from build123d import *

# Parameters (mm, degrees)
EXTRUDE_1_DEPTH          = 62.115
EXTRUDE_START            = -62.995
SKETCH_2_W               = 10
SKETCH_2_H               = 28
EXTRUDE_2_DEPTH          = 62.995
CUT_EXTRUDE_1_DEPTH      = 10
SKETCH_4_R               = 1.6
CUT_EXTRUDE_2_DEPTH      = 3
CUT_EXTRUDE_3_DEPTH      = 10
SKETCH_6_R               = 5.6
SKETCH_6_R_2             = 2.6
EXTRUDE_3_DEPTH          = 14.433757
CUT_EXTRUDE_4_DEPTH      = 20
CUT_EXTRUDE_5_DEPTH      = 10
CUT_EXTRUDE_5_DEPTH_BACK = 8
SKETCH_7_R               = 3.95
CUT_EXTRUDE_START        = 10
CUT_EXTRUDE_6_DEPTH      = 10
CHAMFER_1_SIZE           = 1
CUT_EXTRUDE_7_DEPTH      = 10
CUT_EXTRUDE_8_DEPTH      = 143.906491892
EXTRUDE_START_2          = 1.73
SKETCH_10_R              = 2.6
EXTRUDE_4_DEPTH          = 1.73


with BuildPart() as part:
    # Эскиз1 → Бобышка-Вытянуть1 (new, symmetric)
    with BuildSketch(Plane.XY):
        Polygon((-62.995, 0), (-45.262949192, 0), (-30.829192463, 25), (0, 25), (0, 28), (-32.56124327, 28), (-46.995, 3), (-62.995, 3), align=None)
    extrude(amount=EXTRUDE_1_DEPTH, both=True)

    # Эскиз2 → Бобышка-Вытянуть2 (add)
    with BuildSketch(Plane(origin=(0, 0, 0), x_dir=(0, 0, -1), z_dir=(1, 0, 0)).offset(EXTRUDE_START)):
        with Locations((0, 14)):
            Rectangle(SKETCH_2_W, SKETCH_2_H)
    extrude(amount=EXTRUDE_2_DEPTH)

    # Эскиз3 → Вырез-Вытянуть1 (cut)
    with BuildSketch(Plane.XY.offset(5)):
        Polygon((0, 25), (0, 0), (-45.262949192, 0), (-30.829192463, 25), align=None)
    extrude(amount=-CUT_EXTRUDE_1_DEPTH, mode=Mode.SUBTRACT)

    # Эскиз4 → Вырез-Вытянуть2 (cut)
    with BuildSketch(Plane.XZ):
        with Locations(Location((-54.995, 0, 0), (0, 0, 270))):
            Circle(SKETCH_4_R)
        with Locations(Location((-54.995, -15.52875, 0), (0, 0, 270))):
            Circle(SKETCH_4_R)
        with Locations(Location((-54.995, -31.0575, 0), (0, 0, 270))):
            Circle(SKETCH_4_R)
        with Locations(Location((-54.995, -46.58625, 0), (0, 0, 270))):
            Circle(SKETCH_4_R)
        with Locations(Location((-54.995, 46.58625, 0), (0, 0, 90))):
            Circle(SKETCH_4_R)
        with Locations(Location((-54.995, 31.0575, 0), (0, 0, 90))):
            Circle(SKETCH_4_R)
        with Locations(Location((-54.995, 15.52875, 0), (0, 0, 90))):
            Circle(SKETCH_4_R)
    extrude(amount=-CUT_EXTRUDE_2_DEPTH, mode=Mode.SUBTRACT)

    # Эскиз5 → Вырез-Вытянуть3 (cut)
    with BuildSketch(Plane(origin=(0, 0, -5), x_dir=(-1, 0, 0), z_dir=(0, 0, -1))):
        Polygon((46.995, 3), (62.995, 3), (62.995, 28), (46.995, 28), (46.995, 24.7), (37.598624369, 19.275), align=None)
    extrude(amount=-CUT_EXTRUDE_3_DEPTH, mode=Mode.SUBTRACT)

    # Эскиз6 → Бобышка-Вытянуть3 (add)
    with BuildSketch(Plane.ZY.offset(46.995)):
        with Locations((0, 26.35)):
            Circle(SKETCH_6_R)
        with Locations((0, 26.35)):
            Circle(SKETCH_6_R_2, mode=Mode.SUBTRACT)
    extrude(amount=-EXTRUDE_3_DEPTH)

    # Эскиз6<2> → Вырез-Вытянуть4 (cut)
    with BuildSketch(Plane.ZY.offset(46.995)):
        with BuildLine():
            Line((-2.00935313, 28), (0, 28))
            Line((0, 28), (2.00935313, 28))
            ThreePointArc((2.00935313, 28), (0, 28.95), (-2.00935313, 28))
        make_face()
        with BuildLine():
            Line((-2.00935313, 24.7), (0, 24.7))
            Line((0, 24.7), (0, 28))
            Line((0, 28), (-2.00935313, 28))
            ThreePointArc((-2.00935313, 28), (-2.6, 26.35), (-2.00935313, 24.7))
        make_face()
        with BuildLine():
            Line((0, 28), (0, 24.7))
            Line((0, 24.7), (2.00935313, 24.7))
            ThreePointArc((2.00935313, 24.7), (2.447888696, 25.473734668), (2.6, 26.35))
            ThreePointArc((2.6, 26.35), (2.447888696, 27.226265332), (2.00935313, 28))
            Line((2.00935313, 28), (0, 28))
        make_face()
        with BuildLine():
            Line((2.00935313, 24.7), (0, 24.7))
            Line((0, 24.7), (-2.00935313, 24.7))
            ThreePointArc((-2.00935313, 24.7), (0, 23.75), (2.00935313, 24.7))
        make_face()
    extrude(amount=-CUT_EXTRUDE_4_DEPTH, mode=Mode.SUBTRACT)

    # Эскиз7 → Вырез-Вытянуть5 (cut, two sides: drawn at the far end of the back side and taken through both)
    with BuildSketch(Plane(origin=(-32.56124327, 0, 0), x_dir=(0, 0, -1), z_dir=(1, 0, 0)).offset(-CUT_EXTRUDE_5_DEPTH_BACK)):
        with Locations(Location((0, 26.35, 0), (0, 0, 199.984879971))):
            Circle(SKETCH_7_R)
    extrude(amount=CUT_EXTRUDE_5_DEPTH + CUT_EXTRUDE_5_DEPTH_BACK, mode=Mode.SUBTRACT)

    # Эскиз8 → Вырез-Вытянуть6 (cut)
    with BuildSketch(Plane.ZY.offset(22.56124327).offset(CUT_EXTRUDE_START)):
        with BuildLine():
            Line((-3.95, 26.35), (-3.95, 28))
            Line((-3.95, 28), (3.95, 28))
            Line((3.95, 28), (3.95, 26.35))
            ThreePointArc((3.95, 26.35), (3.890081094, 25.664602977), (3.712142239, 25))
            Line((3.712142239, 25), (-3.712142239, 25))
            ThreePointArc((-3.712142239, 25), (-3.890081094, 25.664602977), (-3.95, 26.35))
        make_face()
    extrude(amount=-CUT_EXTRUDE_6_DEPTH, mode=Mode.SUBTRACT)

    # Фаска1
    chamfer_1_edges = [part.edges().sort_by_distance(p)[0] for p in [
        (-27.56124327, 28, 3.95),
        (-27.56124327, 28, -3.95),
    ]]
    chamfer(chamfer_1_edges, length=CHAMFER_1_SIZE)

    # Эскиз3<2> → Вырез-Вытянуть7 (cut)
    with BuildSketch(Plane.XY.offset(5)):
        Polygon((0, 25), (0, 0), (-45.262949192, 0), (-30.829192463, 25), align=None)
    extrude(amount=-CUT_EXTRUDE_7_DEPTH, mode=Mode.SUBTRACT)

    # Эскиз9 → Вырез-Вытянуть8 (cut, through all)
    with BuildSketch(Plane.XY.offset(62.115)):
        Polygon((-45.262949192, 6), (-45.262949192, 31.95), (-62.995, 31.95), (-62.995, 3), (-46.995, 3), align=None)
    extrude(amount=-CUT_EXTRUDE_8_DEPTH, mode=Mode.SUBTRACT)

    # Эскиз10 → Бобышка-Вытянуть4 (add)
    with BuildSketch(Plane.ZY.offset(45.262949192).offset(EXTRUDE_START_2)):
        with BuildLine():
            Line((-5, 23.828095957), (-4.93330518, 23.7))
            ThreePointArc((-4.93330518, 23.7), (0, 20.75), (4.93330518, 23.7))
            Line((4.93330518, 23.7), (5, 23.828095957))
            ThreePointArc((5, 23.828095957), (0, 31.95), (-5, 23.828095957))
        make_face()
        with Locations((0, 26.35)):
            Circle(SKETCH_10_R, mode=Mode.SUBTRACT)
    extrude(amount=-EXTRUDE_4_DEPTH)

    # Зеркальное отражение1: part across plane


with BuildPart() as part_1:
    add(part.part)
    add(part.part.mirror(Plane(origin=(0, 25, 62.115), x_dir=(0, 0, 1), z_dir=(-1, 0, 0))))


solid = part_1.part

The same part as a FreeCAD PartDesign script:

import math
import FreeCAD as App
import Part
import Sketcher
Q = App.Units.Quantity


def edges_at(feature, points):
    """Names of the edges that pass closest to the given points."""
    edges = feature.Shape.Edges
    near = lambda p: min(range(len(edges)), key=lambda i: edges[i].distToShape(Part.Vertex(*p))[0])
    return sorted({f"Edge{near(p) + 1}" for p in points})


def add_polygon(sketch, points):
    """Adds a closed chain of lines whose ends are joined by coincident constraints."""
    first, n = sketch.GeometryCount, len(points)
    for a, b in zip(points, points[1:] + points[:1]):
        sketch.addGeometry(Part.LineSegment(App.Vector(*a, 0), App.Vector(*b, 0)), False)
    for i in range(n):
        sketch.addConstraint(Sketcher.Constraint("Coincident", first + i, 2, first + (i + 1) % n, 1))

doc = App.newDocument("Part")
params = doc.addObject("Spreadsheet::Sheet", "Params")
for row, (alias, value) in enumerate([
    ("sketch1_width", "16 mm"),
    ("sketch1_height", "3 mm"),
    ("pad1_length", "124.23 mm"),
    ("sketch2_width", "28 mm"),
    ("sketch2_height", "10 mm"),
    ("pad2_length", "62.995 mm"),
    ("sketch3_height", "25 mm"),
    ("pocket1_length", "10 mm"),
    ("sketch4_diameter", "3.2 mm"),
    ("pocket2_length", "3 mm"),
    ("sketch5_width", "16 mm"),
    ("sketch5_height", "25 mm"),
    ("sketch5_height2", "3.3 mm"),
    ("pocket3_length", "10 mm"),
    ("sketch6_diameter", "11.2 mm"),
    ("sketch6_diameter2", "5.2 mm"),
    ("pad3_length", "14.433757 mm"),
    ("sketch7_radius", "2.6 mm"),
    ("pocket4_length", "20 mm"),
    ("sketch8_diameter", "7.9 mm"),
    ("pocket5_length", "10 mm"),
    ("pocket5_length2", "8 mm"),
    ("sketch9_radius", "3.95 mm"),
    ("sketch9_width", "1.65 mm"),
    ("pocket6_length", "10 mm"),
    ("chamfer_size", "1 mm"),
    ("sketch10_height", "25 mm"),
    ("pocket7_length", "10 mm"),
    ("sketch11_width", "16 mm"),
    ("sketch11_height", "25.95 mm"),
    ("sketch12_diameter", "5.2 mm"),
    ("sketch12_radius", "5.6 mm"),
    ("pad4_length", "1.73 mm"),
], start=1):
    params.set(f"A{row}", alias)
    params.set(f"B{row}", "=" + value)
    params.setAlias(f"B{row}", alias)

body = doc.addObject("PartDesign::Body", "Body")

sketch1 = doc.addObject("Sketcher::SketchObject", "Sketch")
body.addObject(sketch1)
sketch1.AttachmentSupport = (doc.XY_Plane, [""])
sketch1.MapMode = "FlatFace"
add_polygon(sketch1, [(-63, 0), (-45.3, 0), (-30.8, 25), (0, 25), (0, 28), (-32.6, 28), (-47, 3), (-63, 3)])
sketch1.addConstraint([
    Sketcher.Constraint("Horizontal", 0),
    Sketcher.Constraint("Horizontal", 2),
    Sketcher.Constraint("Vertical", 3),
    Sketcher.Constraint("Horizontal", 4),
    Sketcher.Constraint("Horizontal", 6),
    Sketcher.Constraint("Vertical", 7),
    Sketcher.Constraint("PointOnObject", 0, 2, -1),
    Sketcher.Constraint("PointOnObject", 2, 2, -2),
    Sketcher.Constraint("Parallel", 1, 5),
    Sketcher.Constraint("Equal", 3, 7),
    Sketcher.Constraint("DistanceX", 6, 2, 6, 1, 16.0),
    Sketcher.Constraint("DistanceY", 3, 1, 3, 2, 3.0),
    Sketcher.Constraint("Angle", 1, Q("60 deg")),
    Sketcher.Constraint("DistanceY", -1, 1, 1, 2, 25.0),
    Sketcher.Constraint("DistanceX", 5, 2, -1, 1, 46.995),
    Sketcher.Constraint("DistanceX", 0, 1, 0, 2, 17.732051),
])
sketch1.setExpression("Constraints[18]", "Params.sketch1_width")
sketch1.setExpression("Constraints[19]", "Params.sketch1_height")
pad1 = doc.addObject("PartDesign::Pad", "Pad")
body.addObject(pad1)
pad1.Profile = sketch1
pad1.setExpression("Length", "Params.pad1_length")
pad1.Midplane = True

sketch2 = doc.addObject("Sketcher::SketchObject", "Sketch001")
body.addObject(sketch2)
sketch2.AttachmentSupport = (doc.YZ_Plane, [""])
sketch2.MapMode = "FlatFace"
sketch2.AttachmentOffset = App.Placement(App.Vector(0, 0, -62.995), App.Rotation())
add_polygon(sketch2, [(28, 5), (0, 5), (0, -5), (28, -5)])
sketch2.addConstraint([
    Sketcher.Constraint("Horizontal", 0),
    Sketcher.Constraint("Vertical", 1),
    Sketcher.Constraint("Horizontal", 2),
    Sketcher.Constraint("Vertical", 3),
    Sketcher.Constraint("Symmetric", 0, 2, 1, 2, -1, 1),
    Sketcher.Constraint("DistanceX", 0, 2, 0, 1, 28.0),
    Sketcher.Constraint("DistanceY", 1, 2, 1, 1, 10.0),
])
sketch2.setExpression("Constraints[9]", "Params.sketch2_width")
sketch2.setExpression("Constraints[10]", "Params.sketch2_height")
pad2 = doc.addObject("PartDesign::Pad", "Pad001")
body.addObject(pad2)
pad2.Profile = sketch2
pad2.setExpression("Length", "Params.pad2_length")

sketch3 = doc.addObject("Sketcher::SketchObject", "Sketch002")
body.addObject(sketch3)
sketch3.AttachmentSupport = (doc.XY_Plane, [""])
sketch3.MapMode = "FlatFace"
sketch3.AttachmentOffset = App.Placement(App.Vector(0, 0, 5), App.Rotation())
add_polygon(sketch3, [(0, 0), (0, 25), (-31, 25), (-45, 0)])
sketch3.addConstraint([
    Sketcher.Constraint("Vertical", 0),
    Sketcher.Constraint("Horizontal", 1),
    Sketcher.Constraint("Horizontal", 3),
    Sketcher.Constraint("Coincident", 3, 2, -1, 1),
    Sketcher.Constraint("DistanceY", 0, 1, 0, 2, 25.0),
    Sketcher.Constraint("Angle", 2, Q("-120 deg")),
    Sketcher.Constraint("DistanceX", 3, 1, 3, 2, 45.262949),
])
sketch3.setExpression("Constraints[8]", "Params.sketch3_height")
pocket1 = doc.addObject("PartDesign::Pocket", "Pocket")
body.addObject(pocket1)
pocket1.Profile = sketch3
pocket1.setExpression("Length", "Params.pocket1_length")

sketch4 = doc.addObject("Sketcher::SketchObject", "Sketch003")
body.addObject(sketch4)
sketch4.AttachmentSupport = (doc.XZ_Plane, [""])
sketch4.MapMode = "FlatFace"
sketch4.addGeometry([
    Part.Circle(App.Vector(-55, 0, 0), App.Vector(0, 0, 1), 1.6),
    Part.Circle(App.Vector(-55, -15.5, 0), App.Vector(0, 0, 1), 1.6),
    Part.Circle(App.Vector(-55, -31.1, 0), App.Vector(0, 0, 1), 1.6),
    Part.Circle(App.Vector(-55, -46.6, 0), App.Vector(0, 0, 1), 1.6),
    Part.Circle(App.Vector(-55, 46.6, 0), App.Vector(0, 0, 1), 1.6),
    Part.Circle(App.Vector(-55, 31.1, 0), App.Vector(0, 0, 1), 1.6),
    Part.Circle(App.Vector(-55, 15.5, 0), App.Vector(0, 0, 1), 1.6),
], False)
sketch4.addConstraint([
    Sketcher.Constraint("Equal", 0, 1),
    Sketcher.Constraint("Equal", 1, 2),
    Sketcher.Constraint("Equal", 2, 3),
    Sketcher.Constraint("Equal", 3, 4),
    Sketcher.Constraint("Equal", 4, 5),
    Sketcher.Constraint("Equal", 5, 6),
    Sketcher.Constraint("Symmetric", 3, 3, 4, 3, -1),
    Sketcher.Constraint("Symmetric", 2, 3, 5, 3, -1),
    Sketcher.Constraint("Symmetric", 1, 3, 6, 3, -1),
    Sketcher.Constraint("PointOnObject", 0, 3, -1),
    Sketcher.Constraint("Vertical", 0, 3, 1, 3),
    Sketcher.Constraint("Vertical", 1, 3, 2, 3),
    Sketcher.Constraint("Vertical", 2, 3, 3, 3),
    Sketcher.Constraint("Diameter", 0, 3.2),
    Sketcher.Constraint("DistanceX", 0, 3, -1, 1, 54.995),
    Sketcher.Constraint("DistanceY", 1, 3, 4, 3, 62.115),
    Sketcher.Constraint("DistanceY", 2, 3, 5, 3, 62.115),
    Sketcher.Constraint("DistanceY", 3, 3, 1, 3, 31.0575),
])
sketch4.setExpression("Constraints[13]", "Params.sketch4_diameter")
pocket2 = doc.addObject("PartDesign::Pocket", "Pocket001")
body.addObject(pocket2)
pocket2.Profile = sketch4
pocket2.setExpression("Length", "Params.pocket2_length")

sketch5 = doc.addObject("Sketcher::SketchObject", "Sketch004")
body.addObject(sketch5)
sketch5.AttachmentSupport = (doc.XY_Plane, [""])
sketch5.MapMode = "FlatFace"
sketch5.AttachmentOffset = App.Placement(App.Vector(0, 0, -5), App.Rotation())
add_polygon(sketch5, [(-47, 3), (-63, 3), (-63, 28), (-47, 28), (-47, 24.7), (-37.6, 19.3)])
sketch5.addConstraint([
    Sketcher.Constraint("Horizontal", 0),
    Sketcher.Constraint("Vertical", 1),
    Sketcher.Constraint("Horizontal", 2),
    Sketcher.Constraint("Vertical", 3),
    Sketcher.Constraint("Perpendicular", 4, 5),
    Sketcher.Constraint("Vertical", 3, 2, 5, 2),
    Sketcher.Constraint("DistanceX", 0, 2, 0, 1, 16.0),
    Sketcher.Constraint("DistanceY", 1, 1, 1, 2, 25.0),
    Sketcher.Constraint("Angle", 4, Q("-30 deg")),
    Sketcher.Constraint("DistanceY", 3, 2, 3, 1, 3.3),
    Sketcher.Constraint("DistanceY", -1, 1, 0, 2, 3.0),
    Sketcher.Constraint("DistanceX", 0, 2, -1, 1, 62.995),
])
sketch5.setExpression("Constraints[12]", "Params.sketch5_width")
sketch5.setExpression("Constraints[13]", "Params.sketch5_height")
sketch5.setExpression("Constraints[15]", "Params.sketch5_height2")
pocket3 = doc.addObject("PartDesign::Pocket", "Pocket002")
body.addObject(pocket3)
pocket3.Profile = sketch5
pocket3.setExpression("Length", "Params.pocket3_length")
pocket3.Reversed = True

sketch6 = doc.addObject("Sketcher::SketchObject", "Sketch005")
body.addObject(sketch6)
sketch6.AttachmentSupport = (doc.YZ_Plane, [""])
sketch6.MapMode = "FlatFace"
sketch6.AttachmentOffset = App.Placement(App.Vector(0, 0, -46.995), App.Rotation())
sketch6.addGeometry([
    Part.Circle(App.Vector(26.4, 0, 0), App.Vector(0, 0, 1), 5.6),
    Part.Circle(App.Vector(26.4, 0, 0), App.Vector(0, 0, 1), 2.6),
], False)
sketch6.addConstraint([
    Sketcher.Constraint("Coincident", 1, 3, 0, 3),
    Sketcher.Constraint("PointOnObject", 0, 3, -1),
    Sketcher.Constraint("Diameter", 0, 11.2),
    Sketcher.Constraint("Diameter", 1, 5.2),
    Sketcher.Constraint("DistanceX", -1, 1, 0, 3, 26.35),
])
sketch6.setExpression("Constraints[2]", "Params.sketch6_diameter")
sketch6.setExpression("Constraints[3]", "Params.sketch6_diameter2")
pad3 = doc.addObject("PartDesign::Pad", "Pad002")
body.addObject(pad3)
pad3.Profile = sketch6
pad3.setExpression("Length", "Params.pad3_length")

sketch7 = doc.addObject("Sketcher::SketchObject", "Sketch006")
body.addObject(sketch7)
sketch7.AttachmentSupport = (doc.YZ_Plane, [""])
sketch7.MapMode = "FlatFace"
sketch7.AttachmentOffset = App.Placement(App.Vector(0, 0, -46.995), App.Rotation())
sketch7.addGeometry([
    Part.ArcOfCircle(Part.Circle(App.Vector(26.4, 0, 0), App.Vector(0, 0, 1), 2.6), math.radians(90), math.radians(129)),
    Part.ArcOfCircle(Part.Circle(App.Vector(26.4, 0, 0), App.Vector(0, 0, 1), 2.6), math.radians(51), math.radians(90)),
    Part.ArcOfCircle(Part.Circle(App.Vector(26.3, 0, 0), App.Vector(0, 0, 1), 2.6), math.radians(-51), math.radians(51)),
    Part.ArcOfCircle(Part.Circle(App.Vector(26.4, 0, 0), App.Vector(0, 0, 1), 2.6), math.radians(-129), math.radians(-51)),
    Part.ArcOfCircle(Part.Circle(App.Vector(26.4, 0, 0), App.Vector(0, 0, 1), 2.6), math.radians(129), math.radians(231)),
], False)
sketch7.addConstraint([
    Sketcher.Constraint("Tangent", 0, 1, 1, 2),
    Sketcher.Constraint("Tangent", 1, 1, 2, 2),
    Sketcher.Constraint("Tangent", 2, 1, 3, 2),
    Sketcher.Constraint("Tangent", 3, 1, 4, 2),
    Sketcher.Constraint("Tangent", 4, 1, 0, 2),
    Sketcher.Constraint("Coincident", 2, 3, 0, 3),
    Sketcher.Constraint("Symmetric", 1, 1, 2, 1, -1),
    Sketcher.Constraint("Horizontal", 2, 1, 3, 1),
    Sketcher.Constraint("Horizontal", 1, 1, 4, 1),
    Sketcher.Constraint("Vertical", 4, 3, 0, 1),
    Sketcher.Constraint("Radius", 0, 2.6),
    Sketcher.Constraint("DistanceX", -1, 1, 1, 1, 28.0),
    Sketcher.Constraint("DistanceX", -1, 1, 3, 1, 24.7),
])
sketch7.setExpression("Constraints[10]", "Params.sketch7_radius")
pocket4 = doc.addObject("PartDesign::Pocket", "Pocket003")
body.addObject(pocket4)
pocket4.Profile = sketch7
pocket4.setExpression("Length", "Params.pocket4_length")
pocket4.Reversed = True

sketch8 = doc.addObject("Sketcher::SketchObject", "Sketch007")
body.addObject(sketch8)
sketch8.AttachmentSupport = (doc.YZ_Plane, [""])
sketch8.MapMode = "FlatFace"
sketch8.AttachmentOffset = App.Placement(App.Vector(0, 0, -32.561243), App.Rotation())
sketch8.addGeometry(Part.Circle(App.Vector(26.4, 0, 0), App.Vector(0, 0, 1), 4), False)
sketch8.addConstraint([
    Sketcher.Constraint("PointOnObject", 0, 3, -1),
    Sketcher.Constraint("Diameter", 0, 7.9),
    Sketcher.Constraint("DistanceX", -1, 1, 0, 3, 26.35),
])
sketch8.setExpression("Constraints[1]", "Params.sketch8_diameter")
pocket5 = doc.addObject("PartDesign::Pocket", "Pocket004")
body.addObject(pocket5)
pocket5.Profile = sketch8
pocket5.Type = "TwoLengths"
pocket5.setExpression("Length", "Params.pocket5_length")
pocket5.setExpression("Length2", "Params.pocket5_length2")
pocket5.Reversed = True

sketch9 = doc.addObject("Sketcher::SketchObject", "Sketch008")
body.addObject(sketch9)
sketch9.AttachmentSupport = (doc.YZ_Plane, [""])
sketch9.MapMode = "FlatFace"
sketch9.AttachmentOffset = App.Placement(App.Vector(0, 0, -32.561243), App.Rotation())
sketch9.addGeometry([
    Part.LineSegment(App.Vector(28, -4, 0), App.Vector(26.4, -4, 0)),
    Part.ArcOfCircle(Part.Circle(App.Vector(26.4, 0, 0), App.Vector(0, 0, 1), 4), math.radians(-109.98), math.radians(-90)),
    Part.LineSegment(App.Vector(25, -3.7, 0), App.Vector(25, 3.7, 0)),
    Part.ArcOfCircle(Part.Circle(App.Vector(26.4, 0, 0), App.Vector(0, 0, 1), 4), math.radians(90), math.radians(109.98)),
    Part.LineSegment(App.Vector(26.4, 4, 0), App.Vector(28, 4, 0)),
    Part.LineSegment(App.Vector(28, 4, 0), App.Vector(28, -4, 0)),
], False)
sketch9.addConstraint([
    Sketcher.Constraint("Tangent", 0, 2, 1, 2),
    Sketcher.Constraint("Coincident", 1, 1, 2, 1),
    Sketcher.Constraint("Coincident", 2, 2, 3, 2),
    Sketcher.Constraint("Tangent", 3, 1, 4, 1),
    Sketcher.Constraint("Coincident", 4, 2, 5, 1),
    Sketcher.Constraint("Coincident", 5, 2, 0, 1),
    Sketcher.Constraint("Horizontal", 0),
    Sketcher.Constraint("Vertical", 2),
    Sketcher.Constraint("Horizontal", 4),
    Sketcher.Constraint("Vertical", 5),
    Sketcher.Constraint("Coincident", 3, 3, 1, 3),
    Sketcher.Constraint("Equal", 1, 3),
    Sketcher.Constraint("PointOnObject", 1, 3, -1),
    Sketcher.Constraint("Radius", 1, 3.95),
    Sketcher.Constraint("DistanceX", -1, 1, 1, 1, 25.0),
    Sketcher.Constraint("DistanceX", -1, 1, 4, 2, 28.0),
    Sketcher.Constraint("DistanceX", 0, 2, 0, 1, 1.65),
])
sketch9.setExpression("Constraints[13]", "Params.sketch9_radius")
sketch9.setExpression("Constraints[16]", "Params.sketch9_width")
pocket6 = doc.addObject("PartDesign::Pocket", "Pocket005")
body.addObject(pocket6)
pocket6.Profile = sketch9
pocket6.setExpression("Length", "Params.pocket6_length")
pocket6.Reversed = True
doc.recompute()

chamfer = doc.addObject("PartDesign::Chamfer", "Chamfer")
body.addObject(chamfer)
chamfer.Base = (pocket6, edges_at(pocket6, [(-27.561, 28, 3.95), (-27.561, 28, -3.95)]))
chamfer.setExpression("Size", "Params.chamfer_size")

sketch10 = doc.addObject("Sketcher::SketchObject", "Sketch009")
body.addObject(sketch10)
sketch10.AttachmentSupport = (doc.XY_Plane, [""])
sketch10.MapMode = "FlatFace"
sketch10.AttachmentOffset = App.Placement(App.Vector(0, 0, 5), App.Rotation())
add_polygon(sketch10, [(0, 0), (0, 25), (-31, 25), (-45, 0)])
sketch10.addConstraint([
    Sketcher.Constraint("Vertical", 0),
    Sketcher.Constraint("Horizontal", 1),
    Sketcher.Constraint("Horizontal", 3),
    Sketcher.Constraint("Coincident", 3, 2, -1, 1),
    Sketcher.Constraint("DistanceY", 0, 1, 0, 2, 25.0),
    Sketcher.Constraint("Angle", 2, Q("-120 deg")),
    Sketcher.Constraint("DistanceX", 3, 1, 3, 2, 45.262949),
])
sketch10.setExpression("Constraints[8]", "Params.sketch10_height")
pocket7 = doc.addObject("PartDesign::Pocket", "Pocket006")
body.addObject(pocket7)
pocket7.Profile = sketch10
pocket7.setExpression("Length", "Params.pocket7_length")

sketch11 = doc.addObject("Sketcher::SketchObject", "Sketch010")
body.addObject(sketch11)
sketch11.AttachmentSupport = (doc.XY_Plane, [""])
sketch11.MapMode = "FlatFace"
sketch11.AttachmentOffset = App.Placement(App.Vector(0, 0, 62.115), App.Rotation())
add_polygon(sketch11, [(-45.3, 6), (-45.3, 31.9), (-63, 31.9), (-63, 3), (-47, 3)])
sketch11.addConstraint([
    Sketcher.Constraint("Vertical", 0),
    Sketcher.Constraint("Horizontal", 1),
    Sketcher.Constraint("Vertical", 2),
    Sketcher.Constraint("Horizontal", 3),
    Sketcher.Constraint("DistanceX", 3, 1, 3, 2, 16.0),
    Sketcher.Constraint("Angle", 4, Q("60 deg")),
    Sketcher.Constraint("DistanceY", -1, 1, 2, 2, 3.0),
    Sketcher.Constraint("DistanceY", -1, 1, 4, 2, 6.0),
    Sketcher.Constraint("DistanceY", 0, 1, 0, 2, 25.95),
    Sketcher.Constraint("DistanceX", 1, 2, -1, 1, 62.995),
])
sketch11.setExpression("Constraints[9]", "Params.sketch11_width")
sketch11.setExpression("Constraints[13]", "Params.sketch11_height")
pocket8 = doc.addObject("PartDesign::Pocket", "Pocket007")
body.addObject(pocket8)
pocket8.Profile = sketch11
pocket8.Type = "ThroughAll"

sketch12 = doc.addObject("Sketcher::SketchObject", "Sketch011")
body.addObject(sketch12)
sketch12.AttachmentSupport = (doc.YZ_Plane, [""])
sketch12.MapMode = "FlatFace"
sketch12.AttachmentOffset = App.Placement(App.Vector(0, 0, -46.992949), App.Rotation())
sketch12.addGeometry([
    Part.LineSegment(App.Vector(23.83, -5, 0), App.Vector(23.7, -4.93, 0)),
    Part.ArcOfCircle(Part.Circle(App.Vector(26.35, 0, 0), App.Vector(0, 0, 1), 5.6), math.radians(118), math.radians(242)),
    Part.LineSegment(App.Vector(23.7, 4.93, 0), App.Vector(23.83, 5, 0)),
    Part.ArcOfCircle(Part.Circle(App.Vector(26.35, 0, 0), App.Vector(0, 0, 1), 5.6), math.radians(-117), math.radians(117)),
    Part.Circle(App.Vector(26.35, 0, 0), App.Vector(0, 0, 1), 2.6),
], False)
sketch12.addConstraint([
    Sketcher.Constraint("Coincident", 0, 2, 1, 2),
    Sketcher.Constraint("Coincident", 1, 1, 2, 1),
    Sketcher.Constraint("Coincident", 2, 2, 3, 2),
    Sketcher.Constraint("Coincident", 3, 1, 0, 1),
    Sketcher.Constraint("Coincident", 3, 3, 1, 3),
    Sketcher.Constraint("Coincident", 4, 3, 1, 3),
    Sketcher.Constraint("Equal", 1, 3),
    Sketcher.Constraint("Symmetric", 0, 2, 1, 1, -1),
    Sketcher.Constraint("Vertical", 2, 2, 3, 1),
    Sketcher.Constraint("Diameter", 4, 5.2),
    Sketcher.Constraint("Radius", 1, 5.6),
    Sketcher.Constraint("DistanceY", -1, 1, 2, 2, 5.0),
    Sketcher.Constraint("DistanceX", -1, 1, 0, 2, 23.7),
    Sketcher.Constraint("DistanceX", -1, 1, 1, 3, 26.35),
])
sketch12.setExpression("Constraints[9]", "Params.sketch12_diameter")
sketch12.setExpression("Constraints[10]", "Params.sketch12_radius")
pad4 = doc.addObject("PartDesign::Pad", "Pad003")
body.addObject(pad4)
pad4.Profile = sketch12
pad4.setExpression("Length", "Params.pad4_length")
body2 = doc.addObject("PartDesign::Body", "Body001")
doc.recompute()

body2.BaseFeature = body
doc.recompute()

mirroring = doc.addObject("Part::Mirroring", "Mirroring")
mirroring.Source = body
mirroring.Base = App.Vector(0, 25, 62.115)
mirroring.Normal = App.Vector(-1, 0, 0)
body3 = doc.addObject("PartDesign::Body", "Body002")
body3.BaseFeature = mirroring
boolean = doc.addObject("PartDesign::Boolean", "Boolean")
body2.addObject(boolean)
boolean.Type = "Fuse"
boolean.addObjects([body3])
doc.recompute()
mirroring.Visibility = False

doc.recompute()
